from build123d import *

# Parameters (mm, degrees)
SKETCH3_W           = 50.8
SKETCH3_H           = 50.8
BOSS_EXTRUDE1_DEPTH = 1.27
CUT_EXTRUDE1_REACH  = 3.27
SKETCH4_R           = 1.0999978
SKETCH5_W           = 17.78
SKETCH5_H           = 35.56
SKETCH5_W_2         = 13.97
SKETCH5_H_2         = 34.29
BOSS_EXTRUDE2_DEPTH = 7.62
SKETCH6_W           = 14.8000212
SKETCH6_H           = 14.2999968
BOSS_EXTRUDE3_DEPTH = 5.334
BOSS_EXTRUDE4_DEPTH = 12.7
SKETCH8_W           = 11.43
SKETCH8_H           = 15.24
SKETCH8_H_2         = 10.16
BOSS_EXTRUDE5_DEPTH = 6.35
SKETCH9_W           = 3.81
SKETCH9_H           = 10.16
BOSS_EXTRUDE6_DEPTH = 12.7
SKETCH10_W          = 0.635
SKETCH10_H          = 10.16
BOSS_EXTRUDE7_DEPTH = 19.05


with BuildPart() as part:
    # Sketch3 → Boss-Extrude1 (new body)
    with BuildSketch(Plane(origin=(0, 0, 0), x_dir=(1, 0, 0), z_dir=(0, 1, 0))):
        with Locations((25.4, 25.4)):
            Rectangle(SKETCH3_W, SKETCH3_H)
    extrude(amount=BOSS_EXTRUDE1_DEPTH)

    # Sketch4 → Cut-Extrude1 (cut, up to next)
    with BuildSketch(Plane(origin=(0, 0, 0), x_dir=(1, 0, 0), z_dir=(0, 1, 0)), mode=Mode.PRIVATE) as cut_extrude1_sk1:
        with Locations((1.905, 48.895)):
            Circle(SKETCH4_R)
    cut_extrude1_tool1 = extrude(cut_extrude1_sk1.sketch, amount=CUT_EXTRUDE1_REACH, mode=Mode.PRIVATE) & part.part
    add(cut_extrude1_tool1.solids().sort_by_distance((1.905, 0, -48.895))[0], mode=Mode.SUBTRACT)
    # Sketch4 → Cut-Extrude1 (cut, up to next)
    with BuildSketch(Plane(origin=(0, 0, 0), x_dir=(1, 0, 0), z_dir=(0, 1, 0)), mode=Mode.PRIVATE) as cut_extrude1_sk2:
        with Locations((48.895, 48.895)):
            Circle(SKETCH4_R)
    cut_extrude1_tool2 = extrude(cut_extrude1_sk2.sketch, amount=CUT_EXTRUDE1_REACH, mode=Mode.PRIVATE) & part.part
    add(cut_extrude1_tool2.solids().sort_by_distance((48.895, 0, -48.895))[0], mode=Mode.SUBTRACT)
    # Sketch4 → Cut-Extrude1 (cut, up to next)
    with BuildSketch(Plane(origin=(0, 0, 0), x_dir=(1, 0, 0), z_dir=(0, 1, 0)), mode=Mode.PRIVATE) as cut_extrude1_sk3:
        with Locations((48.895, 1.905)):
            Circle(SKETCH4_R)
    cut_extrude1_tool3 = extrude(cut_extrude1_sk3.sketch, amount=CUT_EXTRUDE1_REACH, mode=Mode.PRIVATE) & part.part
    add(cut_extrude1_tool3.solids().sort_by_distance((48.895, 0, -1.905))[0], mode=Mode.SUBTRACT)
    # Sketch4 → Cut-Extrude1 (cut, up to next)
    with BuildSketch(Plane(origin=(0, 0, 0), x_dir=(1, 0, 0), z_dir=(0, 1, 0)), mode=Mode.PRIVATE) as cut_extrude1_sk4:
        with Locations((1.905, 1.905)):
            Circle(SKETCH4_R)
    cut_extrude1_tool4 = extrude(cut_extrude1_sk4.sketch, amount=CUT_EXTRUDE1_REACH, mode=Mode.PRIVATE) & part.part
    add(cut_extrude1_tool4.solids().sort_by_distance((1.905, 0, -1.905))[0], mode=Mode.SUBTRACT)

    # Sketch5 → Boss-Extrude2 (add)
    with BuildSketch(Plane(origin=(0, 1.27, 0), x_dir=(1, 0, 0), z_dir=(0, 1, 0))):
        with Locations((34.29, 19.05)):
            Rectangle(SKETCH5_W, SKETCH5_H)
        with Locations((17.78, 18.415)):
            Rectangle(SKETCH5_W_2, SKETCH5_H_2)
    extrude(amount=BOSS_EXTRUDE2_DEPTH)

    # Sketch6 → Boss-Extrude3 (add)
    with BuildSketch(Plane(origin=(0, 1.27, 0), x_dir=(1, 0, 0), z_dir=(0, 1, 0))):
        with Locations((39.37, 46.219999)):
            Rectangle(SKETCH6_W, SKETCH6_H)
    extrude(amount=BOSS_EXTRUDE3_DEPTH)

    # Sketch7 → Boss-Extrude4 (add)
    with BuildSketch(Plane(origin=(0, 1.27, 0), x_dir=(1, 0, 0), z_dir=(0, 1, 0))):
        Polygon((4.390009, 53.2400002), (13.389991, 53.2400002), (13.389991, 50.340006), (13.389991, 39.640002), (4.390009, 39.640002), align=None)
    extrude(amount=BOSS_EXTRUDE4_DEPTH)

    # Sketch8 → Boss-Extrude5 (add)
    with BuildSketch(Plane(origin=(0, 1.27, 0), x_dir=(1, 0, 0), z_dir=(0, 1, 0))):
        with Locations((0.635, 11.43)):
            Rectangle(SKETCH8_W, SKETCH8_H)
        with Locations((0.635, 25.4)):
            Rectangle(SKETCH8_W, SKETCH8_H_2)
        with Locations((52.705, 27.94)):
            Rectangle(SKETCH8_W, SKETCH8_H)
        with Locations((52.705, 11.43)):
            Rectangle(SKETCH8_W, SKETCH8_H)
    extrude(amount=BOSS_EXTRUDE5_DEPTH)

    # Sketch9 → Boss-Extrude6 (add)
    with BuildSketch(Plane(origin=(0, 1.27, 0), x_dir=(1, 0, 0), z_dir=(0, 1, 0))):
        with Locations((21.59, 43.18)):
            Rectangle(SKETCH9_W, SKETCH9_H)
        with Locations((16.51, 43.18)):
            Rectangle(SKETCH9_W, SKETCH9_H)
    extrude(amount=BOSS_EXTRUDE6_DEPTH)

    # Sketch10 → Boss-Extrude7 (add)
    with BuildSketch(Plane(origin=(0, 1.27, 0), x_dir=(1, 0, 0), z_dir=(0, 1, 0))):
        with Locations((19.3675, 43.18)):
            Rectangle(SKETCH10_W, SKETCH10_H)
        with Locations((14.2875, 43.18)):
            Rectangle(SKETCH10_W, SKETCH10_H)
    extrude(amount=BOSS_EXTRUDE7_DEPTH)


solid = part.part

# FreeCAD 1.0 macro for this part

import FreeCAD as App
import Part
import Sketcher
Q = App.Units.Quantity


def add_polygon(sketch, points):
    """Adds a closed chain of lines whose ends are joined by coincident constraints."""
    first, n = sketch.GeometryCount, len(points)
    for a, b in zip(points, points[1:] + points[:1]):
        sketch.addGeometry(Part.LineSegment(App.Vector(*a, 0), App.Vector(*b, 0)), False)
    for i in range(n):
        sketch.addConstraint(Sketcher.Constraint("Coincident", first + i, 2, first + (i + 1) % n, 1))

doc = App.newDocument("Part")
body = doc.addObject("PartDesign::Body", "Body")

sketch1 = doc.addObject("Sketcher::SketchObject", "Sketch")
body.addObject(sketch1)
sketch1.AttachmentSupport = (doc.XZ_Plane, [""])
sketch1.MapMode = "FlatFace"
add_polygon(sketch1, [(0, -50.8), (0, 0), (50.8, 0), (50.8, -50.8)])
sketch1.addConstraint(Sketcher.Constraint("Vertical", 0))
sketch1.addConstraint(Sketcher.Constraint("Horizontal", 1))
sketch1.addConstraint(Sketcher.Constraint("Vertical", 2))
sketch1.addConstraint(Sketcher.Constraint("Horizontal", 3))
sketch1.addConstraint(Sketcher.Constraint("Coincident", 0, 2, -1, 1))
sketch1.addConstraint(Sketcher.Constraint("Equal", 3, 0))
sketch1.addConstraint(Sketcher.Constraint("DistanceX", 1, 1, 1, 2, Q("2 in")))
pad1 = doc.addObject("PartDesign::Pad", "Pad")
body.addObject(pad1)
pad1.Profile = sketch1
pad1.Length = Q("0.05 in")
pad1.Reversed = True

sketch2 = doc.addObject("Sketcher::SketchObject", "Sketch001")
body.addObject(sketch2)
sketch2.AttachmentSupport = (doc.XZ_Plane, [""])
sketch2.MapMode = "FlatFace"
sketch2.addGeometry(Part.Circle(App.Vector(1.905, -48.895, 0), App.Vector(0, 0, 1), 1.099998), False)
sketch2.addConstraint(Sketcher.Constraint("DistanceX", -1, 1, 0, 3, Q("0.075 in")))
sketch2.addConstraint(Sketcher.Constraint("DistanceY", 0, 3, -1, 1, Q("1.925 in")))
sketch2.addConstraint(Sketcher.Constraint("Diameter", 0, Q("2.199996 mm")))
pocket1 = doc.addObject("PartDesign::Pocket", "Pocket")
body.addObject(pocket1)
pocket1.Profile = sketch2
pocket1.Type = "UpToFirst"

sketch3 = doc.addObject("Sketcher::SketchObject", "Sketch002")
body.addObject(sketch3)
sketch3.AttachmentSupport = (doc.XZ_Plane, [""])
sketch3.MapMode = "FlatFace"
sketch3.addGeometry(Part.Circle(App.Vector(48.895, -48.895, 0), App.Vector(0, 0, 1), 1.099998), False)
sketch3.addConstraint(Sketcher.Constraint("DistanceX", -1, 1, 0, 3, Q("1.925 in")))
sketch3.addConstraint(Sketcher.Constraint("DistanceY", 0, 3, -1, 1, Q("1.925 in")))
sketch3.addConstraint(Sketcher.Constraint("Diameter", 0, Q("2.199996 mm")))
pocket2 = doc.addObject("PartDesign::Pocket", "Pocket001")
body.addObject(pocket2)
pocket2.Profile = sketch3
pocket2.Type = "UpToFirst"

sketch4 = doc.addObject("Sketcher::SketchObject", "Sketch003")
body.addObject(sketch4)
sketch4.AttachmentSupport = (doc.XZ_Plane, [""])
sketch4.MapMode = "FlatFace"
sketch4.addGeometry(Part.Circle(App.Vector(48.895, -1.905, 0), App.Vector(0, 0, 1), 1.099998), False)
sketch4.addConstraint(Sketcher.Constraint("DistanceX", -1, 1, 0, 3, Q("1.925 in")))
sketch4.addConstraint(Sketcher.Constraint("DistanceY", 0, 3, -1, 1, Q("0.075 in")))
sketch4.addConstraint(Sketcher.Constraint("Diameter", 0, Q("2.199996 mm")))
pocket3 = doc.addObject("PartDesign::Pocket", "Pocket002")
body.addObject(pocket3)
pocket3.Profile = sketch4
pocket3.Type = "UpToFirst"

sketch5 = doc.addObject("Sketcher::SketchObject", "Sketch004")
body.addObject(sketch5)
sketch5.AttachmentSupport = (doc.XZ_Plane, [""])
sketch5.MapMode = "FlatFace"
sketch5.addGeometry(Part.Circle(App.Vector(1.905, -1.905, 0), App.Vector(0, 0, 1), 1.099998), False)
sketch5.addConstraint(Sketcher.Constraint("DistanceX", -1, 1, 0, 3, Q("0.075 in")))
sketch5.addConstraint(Sketcher.Constraint("DistanceY", 0, 3, -1, 1, Q("0.075 in")))
sketch5.addConstraint(Sketcher.Constraint("Diameter", 0, Q("2.199996 mm")))
pocket4 = doc.addObject("PartDesign::Pocket", "Pocket003")
body.addObject(pocket4)
pocket4.Profile = sketch5
pocket4.Type = "UpToFirst"

sketch6 = doc.addObject("Sketcher::SketchObject", "Sketch005")
body.addObject(sketch6)
sketch6.AttachmentSupport = (doc.XZ_Plane, [""])
sketch6.MapMode = "FlatFace"
sketch6.AttachmentOffset = App.Placement(App.Vector(0, 0, -0.05 * 25.4), App.Rotation())
add_polygon(sketch6, [(25.4, -36.83), (25.4, -1.27), (43.18, -1.27), (43.18, -36.83)])
add_polygon(sketch6, [(10.795, -35.56), (10.795, -1.27), (24.765, -1.27), (24.765, -35.56)])
sketch6.addConstraint(Sketcher.Constraint("Vertical", 0))
sketch6.addConstraint(Sketcher.Constraint("Horizontal", 1))
sketch6.addConstraint(Sketcher.Constraint("Vertical", 2))
sketch6.addConstraint(Sketcher.Constraint("Horizontal", 3))
sketch6.addConstraint(Sketcher.Constraint("Vertical", 4))
sketch6.addConstraint(Sketcher.Constraint("Horizontal", 5))
sketch6.addConstraint(Sketcher.Constraint("Vertical", 6))
sketch6.addConstraint(Sketcher.Constraint("Horizontal", 7))
sketch6.addConstraint(Sketcher.Constraint("Horizontal", 1, 2, 4, 2))
sketch6.addConstraint(Sketcher.Constraint("DistanceX", 1, 1, 1, 2, Q("0.7 in")))
sketch6.addConstraint(Sketcher.Constraint("DistanceY", 0, 1, 0, 2, Q("1.4 in")))
sketch6.addConstraint(Sketcher.Constraint("DistanceX", -1, 1, 0, 2, Q("1 in")))
sketch6.addConstraint(Sketcher.Constraint("DistanceX", 5, 1, 5, 2, Q("0.55 in")))
sketch6.addConstraint(Sketcher.Constraint("DistanceY", 4, 1, 4, 2, Q("1.35 in")))
sketch6.addConstraint(Sketcher.Constraint("DistanceY", 6, 2, -1, 1, Q("1.4 in")))
sketch6.addConstraint(Sketcher.Constraint("DistanceX", -1, 1, 4, 2, Q("0.425 in")))
pad2 = doc.addObject("PartDesign::Pad", "Pad001")
body.addObject(pad2)
pad2.Profile = sketch6
pad2.Length = Q("0.3 in")
pad2.Reversed = True

sketch7 = doc.addObject("Sketcher::SketchObject", "Sketch006")
body.addObject(sketch7)
sketch7.AttachmentSupport = (doc.XZ_Plane, [""])
sketch7.MapMode = "FlatFace"
sketch7.AttachmentOffset = App.Placement(App.Vector(0, 0, -0.05 * 25.4), App.Rotation())
add_polygon(sketch7, [(31.969989, -53.369997), (31.969989, -39.070001), (46.770011, -39.070001), (46.770011, -53.369997)])
sketch7.addConstraint(Sketcher.Constraint("Vertical", 0))
sketch7.addConstraint(Sketcher.Constraint("Horizontal", 1))
sketch7.addConstraint(Sketcher.Constraint("Vertical", 2))
sketch7.addConstraint(Sketcher.Constraint("Horizontal", 3))
sketch7.addConstraint(Sketcher.Constraint("DistanceX", 1, 1, 1, 2, Q("14.800021 mm")))
sketch7.addConstraint(Sketcher.Constraint("DistanceY", 0, 2, -1, 1, Q("39.070001 mm")))
sketch7.addConstraint(Sketcher.Constraint("DistanceY", 0, 1, 0, 2, Q("14.299997 mm")))
sketch7.addConstraint(Sketcher.Constraint("DistanceX", -1, 1, 0, 2, Q("31.969989 mm")))
pad3 = doc.addObject("PartDesign::Pad", "Pad002")
body.addObject(pad3)
pad3.Profile = sketch7
pad3.Length = Q("0.21 in")
pad3.Reversed = True

sketch8 = doc.addObject("Sketcher::SketchObject", "Sketch007")
body.addObject(sketch8)
sketch8.AttachmentSupport = (doc.XZ_Plane, [""])
sketch8.MapMode = "FlatFace"
sketch8.AttachmentOffset = App.Placement(App.Vector(0, 0, -0.05 * 25.4), App.Rotation())
add_polygon(sketch8, [(13.389991, -53.24), (4.390009, -53.24), (4.390009, -39.640002), (13.389991, -39.640002)])
sketch8.addConstraint(Sketcher.Constraint("Horizontal", 0))
sketch8.addConstraint(Sketcher.Constraint("Vertical", 1))
sketch8.addConstraint(Sketcher.Constraint("Horizontal", 2))
sketch8.addConstraint(Sketcher.Constraint("Vertical", 3))
sketch8.addConstraint(Sketcher.Constraint("DistanceY", 1, 1, 1, 2, Q("13.599998 mm")))
sketch8.addConstraint(Sketcher.Constraint("DistanceX", 0, 2, 0, 1, Q("8.999982 mm")))
sketch8.addConstraint(Sketcher.Constraint("DistanceY", 0, 2, -1, 1, Q("53.24 mm")))
sketch8.addConstraint(Sketcher.Constraint("DistanceX", -1, 1, 0, 2, Q("4.390009 mm")))
pad4 = doc.addObject("PartDesign::Pad", "Pad003")
body.addObject(pad4)
pad4.Profile = sketch8
pad4.Length = Q("0.5 in")
pad4.Reversed = True

sketch9 = doc.addObject("Sketcher::SketchObject", "Sketch008")
body.addObject(sketch9)
sketch9.AttachmentSupport = (doc.XZ_Plane, [""])
sketch9.MapMode = "FlatFace"
sketch9.AttachmentOffset = App.Placement(App.Vector(0, 0, -0.05 * 25.4), App.Rotation())
add_polygon(sketch9, [(-5.08, -19.05), (-5.08, -3.81), (6.35, -3.81), (6.35, -19.05)])
add_polygon(sketch9, [(-5.08, -30.48), (-5.08, -20.32), (6.35, -20.32), (6.35, -30.48)])
add_polygon(sketch9, [(46.99, -35.56), (46.99, -20.32), (58.42, -20.32), (58.42, -35.56)])
add_polygon(sketch9, [(46.99, -19.05), (46.99, -3.81), (58.42, -3.81), (58.42, -19.05)])
sketch9.addConstraint(Sketcher.Constraint("Vertical", 0))
sketch9.addConstraint(Sketcher.Constraint("Horizontal", 1))
sketch9.addConstraint(Sketcher.Constraint("Vertical", 2))
sketch9.addConstraint(Sketcher.Constraint("Horizontal", 3))
sketch9.addConstraint(Sketcher.Constraint("Vertical", 4))
sketch9.addConstraint(Sketcher.Constraint("Horizontal", 5))
sketch9.addConstraint(Sketcher.Constraint("Vertical", 6))
sketch9.addConstraint(Sketcher.Constraint("Horizontal", 7))
sketch9.addConstraint(Sketcher.Constraint("Vertical", 8))
sketch9.addConstraint(Sketcher.Constraint("Horizontal", 9))
sketch9.addConstraint(Sketcher.Constraint("Vertical", 10))
sketch9.addConstraint(Sketcher.Constraint("Horizontal", 11))
sketch9.addConstraint(Sketcher.Constraint("Vertical", 12))
sketch9.addConstraint(Sketcher.Constraint("Horizontal", 13))
sketch9.addConstraint(Sketcher.Constraint("Vertical", 14))
sketch9.addConstraint(Sketcher.Constraint("Horizontal", 15))
sketch9.addConstraint(Sketcher.Constraint("Horizontal", 5, 2, 8, 2))
sketch9.addConstraint(Sketcher.Constraint("Horizontal", 1, 2, 12, 2))
sketch9.addConstraint(Sketcher.Constraint("Horizontal", 3, 2, 14, 2))
sketch9.addConstraint(Sketcher.Constraint("Vertical", 3, 2, 4, 2))
sketch9.addConstraint(Sketcher.Constraint("Vertical", 2, 2, 5, 2))
sketch9.addConstraint(Sketcher.Constraint("Vertical", 11, 2, 12, 2))
sketch9.addConstraint(Sketcher.Constraint("Vertical", 10, 2, 13, 2))
sketch9.addConstraint(Sketcher.Constraint("Equal", 7, 9))
sketch9.addConstraint(Sketcher.Constraint("Equal", 2, 8))
sketch9.addConstraint(Sketcher.Constraint("DistanceY", 0, 1, 0, 2, Q("0.6 in")))
sketch9.addConstraint(Sketcher.Constraint("DistanceY", 4, 1, 4, 2, Q("0.4 in")))
sketch9.addConstraint(Sketcher.Constraint("DistanceX", 1, 1, 1, 2, Q("0.45 in")))
sketch9.addConstraint(Sketcher.Constraint("DistanceX", 0, 2, -1, 1, Q("0.2 in")))
sketch9.addConstraint(Sketcher.Constraint("DistanceY", 4, 2, -1, 1, Q("0.8 in")))
sketch9.addConstraint(Sketcher.Constraint("DistanceX", -1, 1, 9, 2, Q("2.3 in")))
sketch9.addConstraint(Sketcher.Constraint("DistanceY", 0, 2, -1, 1, Q("0.15 in")))
pad5 = doc.addObject("PartDesign::Pad", "Pad004")
body.addObject(pad5)
pad5.Profile = sketch9
pad5.Length = Q("0.25 in")
pad5.Reversed = True

sketch10 = doc.addObject("Sketcher::SketchObject", "Sketch009")
body.addObject(sketch10)
sketch10.AttachmentSupport = (doc.XZ_Plane, [""])
sketch10.MapMode = "FlatFace"
sketch10.AttachmentOffset = App.Placement(App.Vector(0, 0, -0.05 * 25.4), App.Rotation())
add_polygon(sketch10, [(19.685, -48.26), (19.685, -38.1), (23.495, -38.1), (23.495, -48.26)])
add_polygon(sketch10, [(14.605, -48.26), (14.605, -38.1), (18.415, -38.1), (18.415, -48.26)])
sketch10.addConstraint(Sketcher.Constraint("Vertical", 0))
sketch10.addConstraint(Sketcher.Constraint("Horizontal", 1))
sketch10.addConstraint(Sketcher.Constraint("Vertical", 2))
sketch10.addConstraint(Sketcher.Constraint("Horizontal", 3))
sketch10.addConstraint(Sketcher.Constraint("Vertical", 4))
sketch10.addConstraint(Sketcher.Constraint("Horizontal", 5))
sketch10.addConstraint(Sketcher.Constraint("Vertical", 6))
sketch10.addConstraint(Sketcher.Constraint("Horizontal", 7))
sketch10.addConstraint(Sketcher.Constraint("Horizontal", 1, 2, 4, 2))
sketch10.addConstraint(Sketcher.Constraint("Horizontal", 3, 2, 6, 2))
sketch10.addConstraint(Sketcher.Constraint("Equal", 3, 5))
sketch10.addConstraint(Sketcher.Constraint("DistanceY", 0, 1, 0, 2, Q("0.4 in")))
sketch10.addConstraint(Sketcher.Constraint("DistanceX", 1, 1, 1, 2, Q("0.15 in")))
sketch10.addConstraint(Sketcher.Constraint("DistanceY", 0, 2, -1, 1, Q("1.5 in")))
sketch10.addConstraint(Sketcher.Constraint("DistanceX", 4, 2, 0, 2, Q("0.2 in")))
sketch10.addConstraint(Sketcher.Constraint("DistanceX", -1, 1, 0, 2, Q("0.775 in")))
pad6 = doc.addObject("PartDesign::Pad", "Pad005")
body.addObject(pad6)
pad6.Profile = sketch10
pad6.Length = Q("0.5 in")
pad6.Reversed = True

sketch11 = doc.addObject("Sketcher::SketchObject", "Sketch010")
body.addObject(sketch11)
sketch11.AttachmentSupport = (doc.XZ_Plane, [""])
sketch11.MapMode = "FlatFace"
sketch11.AttachmentOffset = App.Placement(App.Vector(0, 0, -0.05 * 25.4), App.Rotation())
add_polygon(sketch11, [(19.05, -48.26), (19.05, -38.1), (19.685, -38.1), (19.685, -48.26)])
add_polygon(sketch11, [(13.97, -48.26), (13.97, -38.1), (14.605, -38.1), (14.605, -48.26)])
sketch11.addConstraint(Sketcher.Constraint("Vertical", 0))
sketch11.addConstraint(Sketcher.Constraint("Horizontal", 1))
sketch11.addConstraint(Sketcher.Constraint("Vertical", 2))
sketch11.addConstraint(Sketcher.Constraint("Horizontal", 3))
sketch11.addConstraint(Sketcher.Constraint("Vertical", 4))
sketch11.addConstraint(Sketcher.Constraint("Horizontal", 5))
sketch11.addConstraint(Sketcher.Constraint("Vertical", 6))
sketch11.addConstraint(Sketcher.Constraint("Horizontal", 7))
sketch11.addConstraint(Sketcher.Constraint("Horizontal", 1, 2, 4, 2))
sketch11.addConstraint(Sketcher.Constraint("Horizontal", 3, 2, 6, 2))
sketch11.addConstraint(Sketcher.Constraint("Equal", 3, 5))
sketch11.addConstraint(Sketcher.Constraint("DistanceY", 0, 1, 0, 2, Q("0.4 in")))
sketch11.addConstraint(Sketcher.Constraint("DistanceY", 0, 2, -1, 1, Q("1.5 in")))
sketch11.addConstraint(Sketcher.Constraint("DistanceX", 4, 2, 0, 2, Q("0.2 in")))
sketch11.addConstraint(Sketcher.Constraint("DistanceX", 1, 1, 1, 2, Q("0.025 in")))
sketch11.addConstraint(Sketcher.Constraint("DistanceX", -1, 1, 0, 2, Q("0.75 in")))
pad7 = doc.addObject("PartDesign::Pad", "Pad006")
body.addObject(pad7)
pad7.Profile = sketch11
pad7.Length = Q("0.75 in")
pad7.Reversed = True

doc.recompute()
